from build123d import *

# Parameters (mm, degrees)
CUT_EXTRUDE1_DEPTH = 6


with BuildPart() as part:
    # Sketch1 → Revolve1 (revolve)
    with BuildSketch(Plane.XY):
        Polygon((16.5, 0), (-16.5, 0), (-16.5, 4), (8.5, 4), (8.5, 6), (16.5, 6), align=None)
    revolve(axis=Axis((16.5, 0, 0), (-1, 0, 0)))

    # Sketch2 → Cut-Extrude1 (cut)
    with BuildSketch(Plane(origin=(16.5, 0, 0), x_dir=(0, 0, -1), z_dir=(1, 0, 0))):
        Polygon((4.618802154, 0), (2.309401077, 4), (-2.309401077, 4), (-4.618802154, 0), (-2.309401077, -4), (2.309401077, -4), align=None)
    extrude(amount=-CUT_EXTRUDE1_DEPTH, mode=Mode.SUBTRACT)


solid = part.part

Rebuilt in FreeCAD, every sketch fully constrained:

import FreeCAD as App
import Part
import Sketcher

V = App.Vector
Q = App.Units.Quantity


def add_polygon(sketch, points):
    """Adds a closed chain of lines whose ends are joined by coincident constraints."""
    first, n = sketch.GeometryCount, len(points)
    for a, b in zip(points, points[1:] + points[:1]):
        sketch.addGeometry(Part.LineSegment(App.Vector(*a, 0), App.Vector(*b, 0)), False)
    for i in range(n):
        sketch.addConstraint(Sketcher.Constraint("Coincident", first + i, 2, first + (i + 1) % n, 1))

doc = App.newDocument("Part")
body = doc.addObject("PartDesign::Body", "Body")

# Sketch on XY plane
sketch1 = body.newObject("Sketcher::SketchObject", "Sketch")
sketch1.AttachmentSupport = (doc.getObject("XY_Plane"), [""])
sketch1.MapMode = "FlatFace"
add_polygon(sketch1, [(-16.5, 0), (16.5, 0), (16.5, 6), (8.5, 6), (8.5, 4), (-16.5, 4)])  # lines 0-5
sketch1.addConstraint(Sketcher.Constraint("Horizontal", 0))
sketch1.addConstraint(Sketcher.Constraint("Vertical", 1))
sketch1.addConstraint(Sketcher.Constraint("Horizontal", 2))
sketch1.addConstraint(Sketcher.Constraint("Vertical", 3))
sketch1.addConstraint(Sketcher.Constraint("Horizontal", 4))
sketch1.addConstraint(Sketcher.Constraint("Vertical", 5))
sketch1.addConstraint(Sketcher.Constraint("Symmetric", 0, 2, 5, 2, -1, 1))
sketch1.addConstraint(Sketcher.Constraint("DistanceX", 0, 1, 0, 2, 33.0))
sketch1.addConstraint(Sketcher.Constraint("DistanceX", 2, 2, 2, 1, 8.0))
sketch1.addConstraint(Sketcher.Constraint("DistanceY", 1, 1, 1, 2, 6.0))
sketch1.addConstraint(Sketcher.Constraint("DistanceY", 3, 2, 3, 1, 2.0))
revolution = body.newObject("PartDesign::Revolution", "Revolution")
revolution.Profile = sketch1
revolution.ReferenceAxis = (sketch1, ["H_Axis"])
revolution.Angle = 360

# Sketch on YZ plane
sketch2 = body.newObject("Sketcher::SketchObject", "Sketch001")
sketch2.AttachmentSupport = (doc.getObject("YZ_Plane"), [""])
sketch2.MapMode = "FlatFace"
sketch2.AttachmentOffset = App.Placement(V(0, 0, 16.5), App.Rotation())
add_polygon(sketch2, [(0, -4.6), (4, -2.3), (4, 2.3), (0, 4.6), (-4, 2.3), (-4, -2.3)])  # lines 0-5
sketch2.addConstraint(Sketcher.Constraint("Vertical", 1))
sketch2.addConstraint(Sketcher.Constraint("Vertical", 4))
sketch2.addConstraint(Sketcher.Constraint("Symmetric", 0, 2, 3, 2, -1, 1))
sketch2.addConstraint(Sketcher.Constraint("Symmetric", 2, 2, 5, 2, -1, 1))
sketch2.addConstraint(Sketcher.Constraint("PointOnObject", 2, 2, -2))
sketch2.addConstraint(Sketcher.Constraint("Parallel", 2, 5))
sketch2.addConstraint(Sketcher.Constraint("Horizontal", 1, 2, 3, 2))
sketch2.addConstraint(Sketcher.Constraint("Angle", 0, Q("30 deg")))
sketch2.addConstraint(Sketcher.Constraint("DistanceX", -1, 1, 0, 2, 4.0))
sketch2.addConstraint(Sketcher.Constraint("DistanceY", 0, 2, -1, 1, 2.309401))
pocket1 = body.newObject("PartDesign::Pocket", "Pocket")
pocket1.Profile = sketch2
pocket1.Length = 6

doc.recompute()
